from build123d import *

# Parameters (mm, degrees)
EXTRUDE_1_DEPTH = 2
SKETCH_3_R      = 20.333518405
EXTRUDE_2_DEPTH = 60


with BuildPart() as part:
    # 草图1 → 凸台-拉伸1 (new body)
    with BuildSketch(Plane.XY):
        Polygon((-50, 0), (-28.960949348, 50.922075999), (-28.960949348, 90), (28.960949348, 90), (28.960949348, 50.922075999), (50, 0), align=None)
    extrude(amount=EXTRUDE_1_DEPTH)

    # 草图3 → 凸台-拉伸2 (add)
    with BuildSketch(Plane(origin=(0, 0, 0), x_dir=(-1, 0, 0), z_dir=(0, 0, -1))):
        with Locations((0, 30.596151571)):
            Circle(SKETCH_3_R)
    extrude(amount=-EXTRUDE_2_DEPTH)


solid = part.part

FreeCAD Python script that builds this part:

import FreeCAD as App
import Part
import Sketcher

doc = App.newDocument("Part")
body = doc.addObject("PartDesign::Body", "Body")

# Sketch on XY plane
sketch1 = body.newObject("Sketcher::SketchObject", "Sketch")
sketch1.AttachmentSupport = (doc.getObject("XY_Plane"), [""])
sketch1.MapMode = "FlatFace"
sketch1.addGeometry(Part.LineSegment(App.Vector(-28.960949, 50.922076, 0), App.Vector(-50, 0, 0)), False)
sketch1.addGeometry(Part.LineSegment(App.Vector(-50, 0, 0), App.Vector(50, 0, 0)), False)
sketch1.addGeometry(Part.LineSegment(App.Vector(50, 0, 0), App.Vector(28.960949, 50.922076, 0)), False)
sketch1.addGeometry(Part.LineSegment(App.Vector(28.960949, 50.922076, 0), App.Vector(28.960949, 90, 0)), False)
sketch1.addGeometry(Part.LineSegment(App.Vector(28.960949, 90, 0), App.Vector(-28.960949, 90, 0)), False)
sketch1.addGeometry(Part.LineSegment(App.Vector(-28.960949, 90, 0), App.Vector(-28.960949, 50.922076, 0)), False)
sketch1.addConstraint(Sketcher.Constraint("Coincident", 0, 2, 1, 1))
sketch1.addConstraint(Sketcher.Constraint("Coincident", 1, 2, 2, 1))
sketch1.addConstraint(Sketcher.Constraint("Coincident", 2, 2, 3, 1))
sketch1.addConstraint(Sketcher.Constraint("Coincident", 3, 2, 4, 1))
sketch1.addConstraint(Sketcher.Constraint("Coincident", 4, 2, 5, 1))
sketch1.addConstraint(Sketcher.Constraint("Coincident", 5, 2, 0, 1))
sketch1.addConstraint(Sketcher.Constraint("Horizontal", 1))
sketch1.addConstraint(Sketcher.Constraint("Vertical", 3))
sketch1.addConstraint(Sketcher.Constraint("Horizontal", 4))
sketch1.addConstraint(Sketcher.Constraint("Vertical", 5))
sketch1.addConstraint(Sketcher.Constraint("Symmetric", 0, 2, 1, 2, -1, 1))
sketch1.addConstraint(Sketcher.Constraint("Symmetric", 2, 2, 5, 2, -2))
sketch1.addConstraint(Sketcher.Constraint("DistanceX", 1, 1, 1, 2, 100.0))
sketch1.addConstraint(Sketcher.Constraint("DistanceY", -1, 1, 3, 2, 90.0))
sketch1.addConstraint(Sketcher.Constraint("DistanceX", 4, 2, 4, 1, 57.921899))
sketch1.addConstraint(Sketcher.Constraint("DistanceY", 3, 1, 3, 2, 39.077924))
pad1 = body.newObject("PartDesign::Pad", "Pad")
pad1.Profile = sketch1
pad1.Length = 2

# Sketch on XY plane
sketch2 = body.newObject("Sketcher::SketchObject", "Sketch001")
sketch2.AttachmentSupport = (doc.getObject("XY_Plane"), [""])
sketch2.MapMode = "FlatFace"
sketch2.addGeometry(Part.Circle(App.Vector(0, 30.596152, 0), App.Vector(0, 0, 1), 20.333518), False)
sketch2.addConstraint(Sketcher.Constraint("PointOnObject", 0, 3, -2))
sketch2.addConstraint(Sketcher.Constraint("Diameter", 0, 40.667037))
sketch2.addConstraint(Sketcher.Constraint("DistanceY", -1, 1, 0, 3, 30.596152))
pad2 = body.newObject("PartDesign::Pad", "Pad001")
pad2.Profile = sketch2
pad2.Length = 60

doc.recompute()
